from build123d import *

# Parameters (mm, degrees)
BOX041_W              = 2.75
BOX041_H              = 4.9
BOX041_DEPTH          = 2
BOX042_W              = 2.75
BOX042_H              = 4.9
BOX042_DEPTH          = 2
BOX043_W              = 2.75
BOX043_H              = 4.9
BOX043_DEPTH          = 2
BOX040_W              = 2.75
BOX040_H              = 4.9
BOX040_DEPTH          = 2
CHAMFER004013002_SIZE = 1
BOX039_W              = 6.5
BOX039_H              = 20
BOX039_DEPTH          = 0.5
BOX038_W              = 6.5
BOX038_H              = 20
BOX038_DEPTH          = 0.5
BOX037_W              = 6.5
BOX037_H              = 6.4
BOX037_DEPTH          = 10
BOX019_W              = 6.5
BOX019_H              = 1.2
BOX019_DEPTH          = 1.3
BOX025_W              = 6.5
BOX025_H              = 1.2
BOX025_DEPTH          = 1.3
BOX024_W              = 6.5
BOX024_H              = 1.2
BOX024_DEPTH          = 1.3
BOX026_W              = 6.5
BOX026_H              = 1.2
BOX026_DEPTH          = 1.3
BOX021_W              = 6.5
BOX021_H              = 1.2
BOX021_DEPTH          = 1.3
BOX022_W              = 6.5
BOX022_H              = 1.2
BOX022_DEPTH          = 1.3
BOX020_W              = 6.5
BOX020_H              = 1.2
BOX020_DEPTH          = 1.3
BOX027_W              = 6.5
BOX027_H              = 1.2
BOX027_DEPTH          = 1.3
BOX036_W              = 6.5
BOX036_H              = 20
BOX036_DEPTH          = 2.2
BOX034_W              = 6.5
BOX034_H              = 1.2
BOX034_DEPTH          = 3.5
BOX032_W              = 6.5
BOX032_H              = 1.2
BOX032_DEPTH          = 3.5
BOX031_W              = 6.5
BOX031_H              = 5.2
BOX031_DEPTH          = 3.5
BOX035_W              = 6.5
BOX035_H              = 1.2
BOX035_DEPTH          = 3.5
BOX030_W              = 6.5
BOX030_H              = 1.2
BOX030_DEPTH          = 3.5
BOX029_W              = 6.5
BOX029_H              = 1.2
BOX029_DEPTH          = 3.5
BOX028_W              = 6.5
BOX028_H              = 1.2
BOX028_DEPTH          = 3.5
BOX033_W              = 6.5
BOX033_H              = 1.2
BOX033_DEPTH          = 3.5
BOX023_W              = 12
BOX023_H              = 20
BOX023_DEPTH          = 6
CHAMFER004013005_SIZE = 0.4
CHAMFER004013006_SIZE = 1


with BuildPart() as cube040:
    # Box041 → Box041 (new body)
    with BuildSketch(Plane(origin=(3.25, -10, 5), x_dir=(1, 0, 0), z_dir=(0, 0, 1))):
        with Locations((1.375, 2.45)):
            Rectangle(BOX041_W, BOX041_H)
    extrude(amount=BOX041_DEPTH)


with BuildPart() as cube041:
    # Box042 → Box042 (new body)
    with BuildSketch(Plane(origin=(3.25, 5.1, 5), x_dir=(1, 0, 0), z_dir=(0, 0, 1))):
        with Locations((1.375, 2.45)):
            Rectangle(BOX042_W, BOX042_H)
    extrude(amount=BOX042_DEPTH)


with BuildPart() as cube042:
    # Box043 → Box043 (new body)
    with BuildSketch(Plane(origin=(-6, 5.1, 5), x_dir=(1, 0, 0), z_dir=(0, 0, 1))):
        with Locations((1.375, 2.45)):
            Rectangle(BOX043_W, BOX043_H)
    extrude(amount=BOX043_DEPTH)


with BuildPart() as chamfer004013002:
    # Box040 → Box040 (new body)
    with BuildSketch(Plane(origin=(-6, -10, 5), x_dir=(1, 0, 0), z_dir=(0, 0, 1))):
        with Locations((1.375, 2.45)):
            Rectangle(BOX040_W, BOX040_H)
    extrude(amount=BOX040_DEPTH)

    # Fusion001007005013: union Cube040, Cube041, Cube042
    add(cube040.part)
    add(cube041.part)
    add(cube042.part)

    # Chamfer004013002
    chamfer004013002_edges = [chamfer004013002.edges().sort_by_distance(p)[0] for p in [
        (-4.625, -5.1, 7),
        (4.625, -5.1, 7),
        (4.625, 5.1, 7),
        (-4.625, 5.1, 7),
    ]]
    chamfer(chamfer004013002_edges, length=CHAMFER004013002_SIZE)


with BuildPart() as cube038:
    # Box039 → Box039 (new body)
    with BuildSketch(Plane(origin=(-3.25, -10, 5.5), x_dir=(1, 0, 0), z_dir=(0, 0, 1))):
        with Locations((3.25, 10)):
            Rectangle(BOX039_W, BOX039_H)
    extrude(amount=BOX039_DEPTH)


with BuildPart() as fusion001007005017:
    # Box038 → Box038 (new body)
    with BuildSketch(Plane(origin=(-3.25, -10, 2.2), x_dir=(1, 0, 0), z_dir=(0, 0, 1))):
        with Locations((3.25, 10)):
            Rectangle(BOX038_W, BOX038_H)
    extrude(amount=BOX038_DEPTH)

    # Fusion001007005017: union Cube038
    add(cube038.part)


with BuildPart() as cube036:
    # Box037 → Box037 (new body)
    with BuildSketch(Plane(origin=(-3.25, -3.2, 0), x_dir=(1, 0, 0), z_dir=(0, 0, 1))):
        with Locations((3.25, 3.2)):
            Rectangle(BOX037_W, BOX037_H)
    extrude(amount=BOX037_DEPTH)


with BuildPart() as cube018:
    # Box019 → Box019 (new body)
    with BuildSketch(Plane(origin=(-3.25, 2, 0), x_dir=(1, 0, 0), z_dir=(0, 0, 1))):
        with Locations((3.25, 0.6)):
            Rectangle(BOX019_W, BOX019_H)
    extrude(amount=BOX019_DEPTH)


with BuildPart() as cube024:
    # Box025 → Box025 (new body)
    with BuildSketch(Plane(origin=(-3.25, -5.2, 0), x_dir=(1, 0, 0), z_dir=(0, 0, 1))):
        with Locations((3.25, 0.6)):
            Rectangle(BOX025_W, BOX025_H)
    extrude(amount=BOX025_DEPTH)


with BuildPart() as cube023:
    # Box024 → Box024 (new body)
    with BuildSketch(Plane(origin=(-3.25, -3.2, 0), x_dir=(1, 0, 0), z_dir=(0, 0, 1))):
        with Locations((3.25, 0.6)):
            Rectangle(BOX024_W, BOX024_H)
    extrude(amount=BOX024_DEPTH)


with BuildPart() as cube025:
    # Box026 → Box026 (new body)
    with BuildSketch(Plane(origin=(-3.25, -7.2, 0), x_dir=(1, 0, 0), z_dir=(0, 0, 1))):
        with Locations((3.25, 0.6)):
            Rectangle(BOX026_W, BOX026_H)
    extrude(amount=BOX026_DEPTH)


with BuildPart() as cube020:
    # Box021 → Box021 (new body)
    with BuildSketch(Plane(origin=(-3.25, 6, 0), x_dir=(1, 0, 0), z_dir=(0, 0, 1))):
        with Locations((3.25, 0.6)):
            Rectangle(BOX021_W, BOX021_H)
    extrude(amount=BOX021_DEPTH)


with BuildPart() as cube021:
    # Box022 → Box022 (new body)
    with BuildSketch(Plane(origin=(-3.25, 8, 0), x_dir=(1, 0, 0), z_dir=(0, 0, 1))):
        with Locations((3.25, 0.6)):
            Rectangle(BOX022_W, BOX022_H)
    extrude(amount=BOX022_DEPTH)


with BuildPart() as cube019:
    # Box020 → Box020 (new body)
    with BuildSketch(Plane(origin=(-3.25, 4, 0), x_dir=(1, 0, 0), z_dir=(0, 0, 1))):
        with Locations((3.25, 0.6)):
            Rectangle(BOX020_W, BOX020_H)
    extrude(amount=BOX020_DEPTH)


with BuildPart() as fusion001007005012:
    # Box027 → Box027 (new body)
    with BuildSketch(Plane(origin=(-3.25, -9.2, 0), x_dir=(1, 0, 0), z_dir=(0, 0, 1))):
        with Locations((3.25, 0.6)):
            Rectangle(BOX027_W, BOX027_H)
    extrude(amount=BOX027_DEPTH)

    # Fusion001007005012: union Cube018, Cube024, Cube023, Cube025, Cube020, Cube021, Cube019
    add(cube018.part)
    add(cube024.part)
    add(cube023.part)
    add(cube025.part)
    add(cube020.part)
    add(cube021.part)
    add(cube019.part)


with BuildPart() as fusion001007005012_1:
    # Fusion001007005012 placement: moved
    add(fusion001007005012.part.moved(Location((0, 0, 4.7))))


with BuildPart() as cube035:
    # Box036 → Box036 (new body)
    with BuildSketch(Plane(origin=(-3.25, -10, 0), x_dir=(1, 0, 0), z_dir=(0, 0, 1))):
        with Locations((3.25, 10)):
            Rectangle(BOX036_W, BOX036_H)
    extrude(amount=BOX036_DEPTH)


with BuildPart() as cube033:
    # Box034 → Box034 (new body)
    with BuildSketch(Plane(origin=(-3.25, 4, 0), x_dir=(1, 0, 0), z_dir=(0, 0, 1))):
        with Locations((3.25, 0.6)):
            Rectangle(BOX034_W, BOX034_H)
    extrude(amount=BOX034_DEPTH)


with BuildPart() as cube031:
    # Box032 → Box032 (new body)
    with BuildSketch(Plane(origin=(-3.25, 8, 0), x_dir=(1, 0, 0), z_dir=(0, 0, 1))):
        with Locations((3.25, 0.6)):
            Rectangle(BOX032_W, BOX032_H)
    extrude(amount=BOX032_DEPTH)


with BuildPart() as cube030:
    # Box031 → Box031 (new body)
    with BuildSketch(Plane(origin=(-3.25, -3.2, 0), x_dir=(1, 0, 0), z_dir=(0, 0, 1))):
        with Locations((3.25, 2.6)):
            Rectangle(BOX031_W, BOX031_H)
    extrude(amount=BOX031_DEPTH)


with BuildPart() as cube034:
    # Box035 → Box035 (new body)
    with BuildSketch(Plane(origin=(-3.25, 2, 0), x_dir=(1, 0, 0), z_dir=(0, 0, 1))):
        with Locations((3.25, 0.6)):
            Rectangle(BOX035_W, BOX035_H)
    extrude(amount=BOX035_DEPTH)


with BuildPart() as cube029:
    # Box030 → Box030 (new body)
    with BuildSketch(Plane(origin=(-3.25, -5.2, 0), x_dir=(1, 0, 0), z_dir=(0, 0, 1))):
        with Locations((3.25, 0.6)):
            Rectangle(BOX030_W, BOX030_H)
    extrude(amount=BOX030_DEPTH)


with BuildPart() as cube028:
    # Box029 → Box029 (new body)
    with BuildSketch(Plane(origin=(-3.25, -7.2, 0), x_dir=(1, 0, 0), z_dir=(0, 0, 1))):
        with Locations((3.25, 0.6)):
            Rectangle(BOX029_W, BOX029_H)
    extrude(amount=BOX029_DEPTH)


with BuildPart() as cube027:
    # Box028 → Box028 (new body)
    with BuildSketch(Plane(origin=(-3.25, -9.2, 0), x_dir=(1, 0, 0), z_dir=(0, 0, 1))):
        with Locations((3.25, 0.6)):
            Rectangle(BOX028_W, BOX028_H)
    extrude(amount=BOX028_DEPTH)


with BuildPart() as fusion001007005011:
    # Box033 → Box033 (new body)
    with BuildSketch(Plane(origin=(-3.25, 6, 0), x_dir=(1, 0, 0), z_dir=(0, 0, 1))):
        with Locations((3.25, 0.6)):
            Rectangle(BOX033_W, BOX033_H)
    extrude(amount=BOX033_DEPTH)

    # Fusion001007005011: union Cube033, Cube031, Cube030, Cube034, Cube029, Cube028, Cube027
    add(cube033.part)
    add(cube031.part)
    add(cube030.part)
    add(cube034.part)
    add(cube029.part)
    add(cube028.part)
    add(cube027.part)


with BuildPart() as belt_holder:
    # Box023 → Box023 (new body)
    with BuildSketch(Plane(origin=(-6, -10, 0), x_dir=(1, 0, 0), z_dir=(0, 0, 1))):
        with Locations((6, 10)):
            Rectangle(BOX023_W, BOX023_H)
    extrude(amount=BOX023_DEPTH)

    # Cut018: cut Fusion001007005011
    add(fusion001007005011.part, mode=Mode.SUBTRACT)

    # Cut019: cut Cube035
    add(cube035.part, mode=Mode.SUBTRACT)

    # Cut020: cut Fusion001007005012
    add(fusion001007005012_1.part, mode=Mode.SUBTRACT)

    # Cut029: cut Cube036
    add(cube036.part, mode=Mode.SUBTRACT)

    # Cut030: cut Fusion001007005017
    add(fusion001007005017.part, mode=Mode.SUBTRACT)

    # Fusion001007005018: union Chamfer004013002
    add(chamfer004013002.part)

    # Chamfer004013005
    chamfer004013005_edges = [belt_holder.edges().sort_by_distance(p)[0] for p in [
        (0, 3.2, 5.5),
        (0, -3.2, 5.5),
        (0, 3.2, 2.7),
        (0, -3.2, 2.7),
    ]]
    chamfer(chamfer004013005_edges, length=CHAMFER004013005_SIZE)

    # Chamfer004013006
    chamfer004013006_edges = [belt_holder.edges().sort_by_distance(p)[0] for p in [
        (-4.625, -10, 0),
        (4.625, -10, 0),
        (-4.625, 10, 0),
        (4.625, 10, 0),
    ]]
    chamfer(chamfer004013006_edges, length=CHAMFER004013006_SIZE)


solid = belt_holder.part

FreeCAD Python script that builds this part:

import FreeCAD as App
import Part
import Sketcher

V = App.Vector
Q = App.Units.Quantity


def edges_at(feature, points):
    """Names of the edges that pass closest to the given points."""
    edges = feature.Shape.Edges
    near = lambda p: min(range(len(edges)), key=lambda i: edges[i].distToShape(Part.Vertex(*p))[0])
    return sorted({f"Edge{near(p) + 1}" for p in points})

doc = App.newDocument("Part")
body = doc.addObject("PartDesign::Body", "Body")

# Sketch on XY plane
sketch1 = body.newObject("Sketcher::SketchObject", "Sketch")
sketch1.AttachmentSupport = (doc.getObject("XY_Plane"), [""])
sketch1.MapMode = "FlatFace"
sketch1.AttachmentOffset = App.Placement(V(0, 0, 5), App.Rotation())
sketch1.addGeometry(Part.LineSegment(V(3.25, -5.1, 0), V(3.25, -10, 0)), False)
sketch1.addGeometry(Part.LineSegment(V(3.25, -10, 0), V(6, -10, 0)), False)
sketch1.addGeometry(Part.LineSegment(V(6, -10, 0), V(6, -5.1, 0)), False)
sketch1.addGeometry(Part.LineSegment(V(6, -5.1, 0), V(3.25, -5.1, 0)), False)
sketch1.addConstraint(Sketcher.Constraint("Coincident", 0, 2, 1, 1))
sketch1.addConstraint(Sketcher.Constraint("Coincident", 1, 2, 2, 1))
sketch1.addConstraint(Sketcher.Constraint("Coincident", 2, 2, 3, 1))
sketch1.addConstraint(Sketcher.Constraint("Coincident", 3, 2, 0, 1))
sketch1.addConstraint(Sketcher.Constraint("Vertical", 0))
sketch1.addConstraint(Sketcher.Constraint("Horizontal", 1))
sketch1.addConstraint(Sketcher.Constraint("Vertical", 2))
sketch1.addConstraint(Sketcher.Constraint("Horizontal", 3))
sketch1.addConstraint(Sketcher.Constraint("DistanceY", 0, 2, 0, 1, Q("4.9 mm")))
sketch1.addConstraint(Sketcher.Constraint("DistanceY", 0, 2, -1, 1, Q("10 mm")))
sketch1.addConstraint(Sketcher.Constraint("DistanceX", -1, 1, 1, 2, Q("6 mm")))
sketch1.addConstraint(Sketcher.Constraint("DistanceX", 1, 1, 1, 2, Q("2.75 mm")))
pad1 = body.newObject("PartDesign::Pad", "Pad")
pad1.Profile = sketch1
pad1.Length = 2
body2 = doc.addObject("PartDesign::Body", "Body001")

# Sketch on XY plane
sketch2 = body2.newObject("Sketcher::SketchObject", "Sketch001")
sketch2.AttachmentSupport = (doc.getObject("XY_Plane001"), [""])
sketch2.MapMode = "FlatFace"
sketch2.AttachmentOffset = App.Placement(V(0, 0, 5), App.Rotation())
sketch2.addGeometry(Part.LineSegment(V(3.25, 10, 0), V(3.25, 5.1, 0)), False)
sketch2.addGeometry(Part.LineSegment(V(3.25, 5.1, 0), V(6, 5.1, 0)), False)
sketch2.addGeometry(Part.LineSegment(V(6, 5.1, 0), V(6, 10, 0)), False)
sketch2.addGeometry(Part.LineSegment(V(6, 10, 0), V(3.25, 10, 0)), False)
sketch2.addConstraint(Sketcher.Constraint("Coincident", 0, 2, 1, 1))
sketch2.addConstraint(Sketcher.Constraint("Coincident", 1, 2, 2, 1))
sketch2.addConstraint(Sketcher.Constraint("Coincident", 2, 2, 3, 1))
sketch2.addConstraint(Sketcher.Constraint("Coincident", 3, 2, 0, 1))
sketch2.addConstraint(Sketcher.Constraint("Vertical", 0))
sketch2.addConstraint(Sketcher.Constraint("Horizontal", 1))
sketch2.addConstraint(Sketcher.Constraint("Vertical", 2))
sketch2.addConstraint(Sketcher.Constraint("Horizontal", 3))
sketch2.addConstraint(Sketcher.Constraint("DistanceY", 0, 2, 0, 1, Q("4.9 mm")))
sketch2.addConstraint(Sketcher.Constraint("DistanceX", -1, 1, 1, 2, Q("6 mm")))
sketch2.addConstraint(Sketcher.Constraint("DistanceY", -1, 1, 2, 2, Q("10 mm")))
sketch2.addConstraint(Sketcher.Constraint("DistanceX", 1, 1, 1, 2, Q("2.75 mm")))
pad2 = body2.newObject("PartDesign::Pad", "Pad001")
pad2.Profile = sketch2
pad2.Length = 2
body3 = doc.addObject("PartDesign::Body", "Body002")

# Sketch on XY plane
sketch3 = body3.newObject("Sketcher::SketchObject", "Sketch002")
sketch3.AttachmentSupport = (doc.getObject("XY_Plane002"), [""])
sketch3.MapMode = "FlatFace"
sketch3.AttachmentOffset = App.Placement(V(0, 0, 5), App.Rotation())
sketch3.addGeometry(Part.LineSegment(V(-6, 10, 0), V(-6, 5.1, 0)), False)
sketch3.addGeometry(Part.LineSegment(V(-6, 5.1, 0), V(-3.25, 5.1, 0)), False)
sketch3.addGeometry(Part.LineSegment(V(-3.25, 5.1, 0), V(-3.25, 10, 0)), False)
sketch3.addGeometry(Part.LineSegment(V(-3.25, 10, 0), V(-6, 10, 0)), False)
sketch3.addConstraint(Sketcher.Constraint("Coincident", 0, 2, 1, 1))
sketch3.addConstraint(Sketcher.Constraint("Coincident", 1, 2, 2, 1))
sketch3.addConstraint(Sketcher.Constraint("Coincident", 2, 2, 3, 1))
sketch3.addConstraint(Sketcher.Constraint("Coincident", 3, 2, 0, 1))
sketch3.addConstraint(Sketcher.Constraint("Vertical", 0))
sketch3.addConstraint(Sketcher.Constraint("Horizontal", 1))
sketch3.addConstraint(Sketcher.Constraint("Vertical", 2))
sketch3.addConstraint(Sketcher.Constraint("Horizontal", 3))
sketch3.addConstraint(Sketcher.Constraint("DistanceY", 0, 2, 0, 1, Q("4.9 mm")))
sketch3.addConstraint(Sketcher.Constraint("DistanceX", 0, 2, -1, 1, Q("6 mm")))
sketch3.addConstraint(Sketcher.Constraint("DistanceY", -1, 1, 2, 2, Q("10 mm")))
sketch3.addConstraint(Sketcher.Constraint("DistanceX", 1, 1, 1, 2, Q("2.75 mm")))
pad3 = body3.newObject("PartDesign::Pad", "Pad002")
pad3.Profile = sketch3
pad3.Length = 2
body4 = doc.addObject("PartDesign::Body", "Body003")
body4.AllowCompound = True

# Sketch on XY plane
sketch4 = body4.newObject("Sketcher::SketchObject", "Sketch003")
sketch4.AttachmentSupport = (doc.getObject("XY_Plane003"), [""])
sketch4.MapMode = "FlatFace"
sketch4.AttachmentOffset = App.Placement(V(0, 0, 5), App.Rotation())
sketch4.addGeometry(Part.LineSegment(V(-6, -5.1, 0), V(-6, -10, 0)), False)
sketch4.addGeometry(Part.LineSegment(V(-6, -10, 0), V(-3.25, -10, 0)), False)
sketch4.addGeometry(Part.LineSegment(V(-3.25, -10, 0), V(-3.25, -5.1, 0)), False)
sketch4.addGeometry(Part.LineSegment(V(-3.25, -5.1, 0), V(-6, -5.1, 0)), False)
sketch4.addConstraint(Sketcher.Constraint("Coincident", 0, 2, 1, 1))
sketch4.addConstraint(Sketcher.Constraint("Coincident", 1, 2, 2, 1))
sketch4.addConstraint(Sketcher.Constraint("Coincident", 2, 2, 3, 1))
sketch4.addConstraint(Sketcher.Constraint("Coincident", 3, 2, 0, 1))
sketch4.addConstraint(Sketcher.Constraint("Vertical", 0))
sketch4.addConstraint(Sketcher.Constraint("Horizontal", 1))
sketch4.addConstraint(Sketcher.Constraint("Vertical", 2))
sketch4.addConstraint(Sketcher.Constraint("Horizontal", 3))
sketch4.addConstraint(Sketcher.Constraint("DistanceY", 0, 2, 0, 1, Q("4.9 mm")))
sketch4.addConstraint(Sketcher.Constraint("DistanceX", 0, 2, -1, 1, Q("6 mm")))
sketch4.addConstraint(Sketcher.Constraint("DistanceY", 0, 2, -1, 1, Q("10 mm")))
sketch4.addConstraint(Sketcher.Constraint("DistanceX", 1, 1, 1, 2, Q("2.75 mm")))
pad4 = body4.newObject("PartDesign::Pad", "Pad003")
pad4.Profile = sketch4
pad4.Length = 2
doc.recompute()

boolean = body4.newObject("PartDesign::Boolean", "Boolean")
boolean.Type = "Fuse"
boolean.addObjects([body])
doc.recompute()

boolean2 = body4.newObject("PartDesign::Boolean", "Boolean001")
boolean2.Type = "Fuse"
boolean2.addObjects([body2])
doc.recompute()

boolean3 = body4.newObject("PartDesign::Boolean", "Boolean002")
boolean3.Type = "Fuse"
boolean3.addObjects([body3])
doc.recompute()

chamfer = body4.newObject("PartDesign::Chamfer", "Chamfer")
chamfer.Base = (boolean3, edges_at(boolean3, [
    (-4.625, -5.1, 7),
    (4.625, -5.1, 7),
    (4.625, 5.1, 7),
    (-4.625, 5.1, 7),
]))
chamfer.Size = 1
body5 = doc.addObject("PartDesign::Body", "Body004")

# Sketch on XY plane
sketch5 = body5.newObject("Sketcher::SketchObject", "Sketch004")
sketch5.AttachmentSupport = (doc.getObject("XY_Plane004"), [""])
sketch5.MapMode = "FlatFace"
sketch5.AttachmentOffset = App.Placement(V(0, 0, 5.5), App.Rotation())
sketch5.addGeometry(Part.LineSegment(V(-3.25, 10, 0), V(-3.25, -10, 0)), False)
sketch5.addGeometry(Part.LineSegment(V(-3.25, -10, 0), V(3.25, -10, 0)), False)
sketch5.addGeometry(Part.LineSegment(V(3.25, -10, 0), V(3.25, 10, 0)), False)
sketch5.addGeometry(Part.LineSegment(V(3.25, 10, 0), V(-3.25, 10, 0)), False)
sketch5.addConstraint(Sketcher.Constraint("Coincident", 0, 2, 1, 1))
sketch5.addConstraint(Sketcher.Constraint("Coincident", 1, 2, 2, 1))
sketch5.addConstraint(Sketcher.Constraint("Coincident", 2, 2, 3, 1))
sketch5.addConstraint(Sketcher.Constraint("Coincident", 3, 2, 0, 1))
sketch5.addConstraint(Sketcher.Constraint("Vertical", 0))
sketch5.addConstraint(Sketcher.Constraint("Horizontal", 1))
sketch5.addConstraint(Sketcher.Constraint("Vertical", 2))
sketch5.addConstraint(Sketcher.Constraint("Horizontal", 3))
sketch5.addConstraint(Sketcher.Constraint("Symmetric", 0, 2, 2, 2, -1, 1))
sketch5.addConstraint(Sketcher.Constraint("DistanceY", 0, 2, 0, 1, Q("20 mm")))
sketch5.addConstraint(Sketcher.Constraint("DistanceX", 1, 1, 1, 2, Q("6.5 mm")))
pad5 = body5.newObject("PartDesign::Pad", "Pad004")
pad5.Profile = sketch5
pad5.Length = 0.5
body6 = doc.addObject("PartDesign::Body", "Body005")
body6.AllowCompound = True

# Sketch on XY plane
sketch6 = body6.newObject("Sketcher::SketchObject", "Sketch005")
sketch6.AttachmentSupport = (doc.getObject("XY_Plane005"), [""])
sketch6.MapMode = "FlatFace"
sketch6.AttachmentOffset = App.Placement(V(0, 0, 2.2), App.Rotation())
sketch6.addGeometry(Part.LineSegment(V(-3.25, 10, 0), V(-3.25, -10, 0)), False)
sketch6.addGeometry(Part.LineSegment(V(-3.25, -10, 0), V(3.25, -10, 0)), False)
sketch6.addGeometry(Part.LineSegment(V(3.25, -10, 0), V(3.25, 10, 0)), False)
sketch6.addGeometry(Part.LineSegment(V(3.25, 10, 0), V(-3.25, 10, 0)), False)
sketch6.addConstraint(Sketcher.Constraint("Coincident", 0, 2, 1, 1))
sketch6.addConstraint(Sketcher.Constraint("Coincident", 1, 2, 2, 1))
sketch6.addConstraint(Sketcher.Constraint("Coincident", 2, 2, 3, 1))
sketch6.addConstraint(Sketcher.Constraint("Coincident", 3, 2, 0, 1))
sketch6.addConstraint(Sketcher.Constraint("Vertical", 0))
sketch6.addConstraint(Sketcher.Constraint("Horizontal", 1))
sketch6.addConstraint(Sketcher.Constraint("Vertical", 2))
sketch6.addConstraint(Sketcher.Constraint("Horizontal", 3))
sketch6.addConstraint(Sketcher.Constraint("Symmetric", 0, 2, 2, 2, -1, 1))
sketch6.addConstraint(Sketcher.Constraint("DistanceY", 0, 2, 0, 1, Q("20 mm")))
sketch6.addConstraint(Sketcher.Constraint("DistanceX", 1, 1, 1, 2, Q("6.5 mm")))
pad6 = body6.newObject("PartDesign::Pad", "Pad005")
pad6.Profile = sketch6
pad6.Length = 0.5
doc.recompute()

boolean4 = body6.newObject("PartDesign::Boolean", "Boolean003")
boolean4.Type = "Fuse"
boolean4.addObjects([body5])
body7 = doc.addObject("PartDesign::Body", "Body006")

# Sketch on XY plane
sketch7 = body7.newObject("Sketcher::SketchObject", "Sketch006")
sketch7.AttachmentSupport = (doc.getObject("XY_Plane006"), [""])
sketch7.MapMode = "FlatFace"
sketch7.addGeometry(Part.LineSegment(V(-3.25, 3.2, 0), V(-3.25, -3.2, 0)), False)
sketch7.addGeometry(Part.LineSegment(V(-3.25, -3.2, 0), V(3.25, -3.2, 0)), False)
sketch7.addGeometry(Part.LineSegment(V(3.25, -3.2, 0), V(3.25, 3.2, 0)), False)
sketch7.addGeometry(Part.LineSegment(V(3.25, 3.2, 0), V(-3.25, 3.2, 0)), False)
sketch7.addConstraint(Sketcher.Constraint("Coincident", 0, 2, 1, 1))
sketch7.addConstraint(Sketcher.Constraint("Coincident", 1, 2, 2, 1))
sketch7.addConstraint(Sketcher.Constraint("Coincident", 2, 2, 3, 1))
sketch7.addConstraint(Sketcher.Constraint("Coincident", 3, 2, 0, 1))
sketch7.addConstraint(Sketcher.Constraint("Vertical", 0))
sketch7.addConstraint(Sketcher.Constraint("Horizontal", 1))
sketch7.addConstraint(Sketcher.Constraint("Vertical", 2))
sketch7.addConstraint(Sketcher.Constraint("Horizontal", 3))
sketch7.addConstraint(Sketcher.Constraint("Symmetric", 0, 2, 2, 2, -1, 1))
sketch7.addConstraint(Sketcher.Constraint("DistanceX", 1, 1, 1, 2, Q("6.5 mm")))
sketch7.addConstraint(Sketcher.Constraint("DistanceY", 0, 2, 0, 1, Q("6.4 mm")))
pad7 = body7.newObject("PartDesign::Pad", "Pad006")
pad7.Profile = sketch7
pad7.Length = 10
body8 = doc.addObject("PartDesign::Body", "Body007")

# Sketch on XY plane
sketch8 = body8.newObject("Sketcher::SketchObject", "Sketch007")
sketch8.AttachmentSupport = (doc.getObject("XY_Plane007"), [""])
sketch8.MapMode = "FlatFace"
sketch8.addGeometry(Part.LineSegment(V(-3.25, 3.2, 0), V(-3.25, 2, 0)), False)
sketch8.addGeometry(Part.LineSegment(V(-3.25, 2, 0), V(3.25, 2, 0)), False)
sketch8.addGeometry(Part.LineSegment(V(3.25, 2, 0), V(3.25, 3.2, 0)), False)
sketch8.addGeometry(Part.LineSegment(V(3.25, 3.2, 0), V(-3.25, 3.2, 0)), False)
sketch8.addConstraint(Sketcher.Constraint("Coincident", 0, 2, 1, 1))
sketch8.addConstraint(Sketcher.Constraint("Coincident", 1, 2, 2, 1))
sketch8.addConstraint(Sketcher.Constraint("Coincident", 2, 2, 3, 1))
sketch8.addConstraint(Sketcher.Constraint("Coincident", 3, 2, 0, 1))
sketch8.addConstraint(Sketcher.Constraint("Vertical", 0))
sketch8.addConstraint(Sketcher.Constraint("Horizontal", 1))
sketch8.addConstraint(Sketcher.Constraint("Vertical", 2))
sketch8.addConstraint(Sketcher.Constraint("Horizontal", 3))
sketch8.addConstraint(Sketcher.Constraint("DistanceX", 1, 1, 1, 2, Q("6.5 mm")))
sketch8.addConstraint(Sketcher.Constraint("DistanceY", 0, 2, 0, 1, Q("1.2 mm")))
sketch8.addConstraint(Sketcher.Constraint("DistanceY", -1, 1, 0, 2, Q("2 mm")))
sketch8.addConstraint(Sketcher.Constraint("DistanceX", 0, 2, -1, 1, Q("3.25 mm")))
pad8 = body8.newObject("PartDesign::Pad", "Pad007")
pad8.Profile = sketch8
pad8.Length = 1.3
body9 = doc.addObject("PartDesign::Body", "Body008")

# Sketch on XY plane
sketch9 = body9.newObject("Sketcher::SketchObject", "Sketch008")
sketch9.AttachmentSupport = (doc.getObject("XY_Plane008"), [""])
sketch9.MapMode = "FlatFace"
sketch9.addGeometry(Part.LineSegment(V(-3.25, -4, 0), V(-3.25, -5.2, 0)), False)
sketch9.addGeometry(Part.LineSegment(V(-3.25, -5.2, 0), V(3.25, -5.2, 0)), False)
sketch9.addGeometry(Part.LineSegment(V(3.25, -5.2, 0), V(3.25, -4, 0)), False)
sketch9.addGeometry(Part.LineSegment(V(3.25, -4, 0), V(-3.25, -4, 0)), False)
sketch9.addConstraint(Sketcher.Constraint("Coincident", 0, 2, 1, 1))
sketch9.addConstraint(Sketcher.Constraint("Coincident", 1, 2, 2, 1))
sketch9.addConstraint(Sketcher.Constraint("Coincident", 2, 2, 3, 1))
sketch9.addConstraint(Sketcher.Constraint("Coincident", 3, 2, 0, 1))
sketch9.addConstraint(Sketcher.Constraint("Vertical", 0))
sketch9.addConstraint(Sketcher.Constraint("Horizontal", 1))
sketch9.addConstraint(Sketcher.Constraint("Vertical", 2))
sketch9.addConstraint(Sketcher.Constraint("Horizontal", 3))
sketch9.addConstraint(Sketcher.Constraint("DistanceX", 1, 1, 1, 2, Q("6.5 mm")))
sketch9.addConstraint(Sketcher.Constraint("DistanceY", 0, 2, 0, 1, Q("1.2 mm")))
sketch9.addConstraint(Sketcher.Constraint("DistanceY", 2, 2, -1, 1, Q("4 mm")))
sketch9.addConstraint(Sketcher.Constraint("DistanceX", 0, 2, -1, 1, Q("3.25 mm")))
pad9 = body9.newObject("PartDesign::Pad", "Pad008")
pad9.Profile = sketch9
pad9.Length = 1.3
body10 = doc.addObject("PartDesign::Body", "Body009")

# Sketch on XY plane
sketch10 = body10.newObject("Sketcher::SketchObject", "Sketch009")
sketch10.AttachmentSupport = (doc.getObject("XY_Plane009"), [""])
sketch10.MapMode = "FlatFace"
sketch10.addGeometry(Part.LineSegment(V(-3.25, -2, 0), V(-3.25, -3.2, 0)), False)
sketch10.addGeometry(Part.LineSegment(V(-3.25, -3.2, 0), V(3.25, -3.2, 0)), False)
sketch10.addGeometry(Part.LineSegment(V(3.25, -3.2, 0), V(3.25, -2, 0)), False)
sketch10.addGeometry(Part.LineSegment(V(3.25, -2, 0), V(-3.25, -2, 0)), False)
sketch10.addConstraint(Sketcher.Constraint("Coincident", 0, 2, 1, 1))
sketch10.addConstraint(Sketcher.Constraint("Coincident", 1, 2, 2, 1))
sketch10.addConstraint(Sketcher.Constraint("Coincident", 2, 2, 3, 1))
sketch10.addConstraint(Sketcher.Constraint("Coincident", 3, 2, 0, 1))
sketch10.addConstraint(Sketcher.Constraint("Vertical", 0))
sketch10.addConstraint(Sketcher.Constraint("Horizontal", 1))
sketch10.addConstraint(Sketcher.Constraint("Vertical", 2))
sketch10.addConstraint(Sketcher.Constraint("Horizontal", 3))
sketch10.addConstraint(Sketcher.Constraint("DistanceX", 1, 1, 1, 2, Q("6.5 mm")))
sketch10.addConstraint(Sketcher.Constraint("DistanceY", 0, 2, 0, 1, Q("1.2 mm")))
sketch10.addConstraint(Sketcher.Constraint("DistanceY", 2, 2, -1, 1, Q("2 mm")))
sketch10.addConstraint(Sketcher.Constraint("DistanceX", 0, 2, -1, 1, Q("3.25 mm")))
pad10 = body10.newObject("PartDesign::Pad", "Pad009")
pad10.Profile = sketch10
pad10.Length = 1.3
body11 = doc.addObject("PartDesign::Body", "Body010")

# Sketch on XY plane
sketch11 = body11.newObject("Sketcher::SketchObject", "Sketch010")
sketch11.AttachmentSupport = (doc.getObject("XY_Plane010"), [""])
sketch11.MapMode = "FlatFace"
sketch11.addGeometry(Part.LineSegment(V(-3.25, -6, 0), V(-3.25, -7.2, 0)), False)
sketch11.addGeometry(Part.LineSegment(V(-3.25, -7.2, 0), V(3.25, -7.2, 0)), False)
sketch11.addGeometry(Part.LineSegment(V(3.25, -7.2, 0), V(3.25, -6, 0)), False)
sketch11.addGeometry(Part.LineSegment(V(3.25, -6, 0), V(-3.25, -6, 0)), False)
sketch11.addConstraint(Sketcher.Constraint("Coincident", 0, 2, 1, 1))
sketch11.addConstraint(Sketcher.Constraint("Coincident", 1, 2, 2, 1))
sketch11.addConstraint(Sketcher.Constraint("Coincident", 2, 2, 3, 1))
sketch11.addConstraint(Sketcher.Constraint("Coincident", 3, 2, 0, 1))
sketch11.addConstraint(Sketcher.Constraint("Vertical", 0))
sketch11.addConstraint(Sketcher.Constraint("Horizontal", 1))
sketch11.addConstraint(Sketcher.Constraint("Vertical", 2))
sketch11.addConstraint(Sketcher.Constraint("Horizontal", 3))
sketch11.addConstraint(Sketcher.Constraint("DistanceX", 1, 1, 1, 2, Q("6.5 mm")))
sketch11.addConstraint(Sketcher.Constraint("DistanceY", 0, 2, 0, 1, Q("1.2 mm")))
sketch11.addConstraint(Sketcher.Constraint("DistanceY", 2, 2, -1, 1, Q("6 mm")))
sketch11.addConstraint(Sketcher.Constraint("DistanceX", 0, 2, -1, 1, Q("3.25 mm")))
pad11 = body11.newObject("PartDesign::Pad", "Pad010")
pad11.Profile = sketch11
pad11.Length = 1.3
body12 = doc.addObject("PartDesign::Body", "Body011")

# Sketch on XY plane
sketch12 = body12.newObject("Sketcher::SketchObject", "Sketch011")
sketch12.AttachmentSupport = (doc.getObject("XY_Plane011"), [""])
sketch12.MapMode = "FlatFace"
sketch12.addGeometry(Part.LineSegment(V(-3.25, 7.2, 0), V(-3.25, 6, 0)), False)
sketch12.addGeometry(Part.LineSegment(V(-3.25, 6, 0), V(3.25, 6, 0)), False)
sketch12.addGeometry(Part.LineSegment(V(3.25, 6, 0), V(3.25, 7.2, 0)), False)
sketch12.addGeometry(Part.LineSegment(V(3.25, 7.2, 0), V(-3.25, 7.2, 0)), False)
sketch12.addConstraint(Sketcher.Constraint("Coincident", 0, 2, 1, 1))
sketch12.addConstraint(Sketcher.Constraint("Coincident", 1, 2, 2, 1))
sketch12.addConstraint(Sketcher.Constraint("Coincident", 2, 2, 3, 1))
sketch12.addConstraint(Sketcher.Constraint("Coincident", 3, 2, 0, 1))
sketch12.addConstraint(Sketcher.Constraint("Vertical", 0))
sketch12.addConstraint(Sketcher.Constraint("Horizontal", 1))
sketch12.addConstraint(Sketcher.Constraint("Vertical", 2))
sketch12.addConstraint(Sketcher.Constraint("Horizontal", 3))
sketch12.addConstraint(Sketcher.Constraint("DistanceX", 1, 1, 1, 2, Q("6.5 mm")))
sketch12.addConstraint(Sketcher.Constraint("DistanceY", 0, 2, 0, 1, Q("1.2 mm")))
sketch12.addConstraint(Sketcher.Constraint("DistanceY", -1, 1, 0, 2, Q("6 mm")))
sketch12.addConstraint(Sketcher.Constraint("DistanceX", 0, 2, -1, 1, Q("3.25 mm")))
pad12 = body12.newObject("PartDesign::Pad", "Pad011")
pad12.Profile = sketch12
pad12.Length = 1.3
body13 = doc.addObject("PartDesign::Body", "Body012")

# Sketch on XY plane
sketch13 = body13.newObject("Sketcher::SketchObject", "Sketch012")
sketch13.AttachmentSupport = (doc.getObject("XY_Plane012"), [""])
sketch13.MapMode = "FlatFace"
sketch13.addGeometry(Part.LineSegment(V(-3.25, 9.2, 0), V(-3.25, 8, 0)), False)
sketch13.addGeometry(Part.LineSegment(V(-3.25, 8, 0), V(3.25, 8, 0)), False)
sketch13.addGeometry(Part.LineSegment(V(3.25, 8, 0), V(3.25, 9.2, 0)), False)
sketch13.addGeometry(Part.LineSegment(V(3.25, 9.2, 0), V(-3.25, 9.2, 0)), False)
sketch13.addConstraint(Sketcher.Constraint("Coincident", 0, 2, 1, 1))
sketch13.addConstraint(Sketcher.Constraint("Coincident", 1, 2, 2, 1))
sketch13.addConstraint(Sketcher.Constraint("Coincident", 2, 2, 3, 1))
sketch13.addConstraint(Sketcher.Constraint("Coincident", 3, 2, 0, 1))
sketch13.addConstraint(Sketcher.Constraint("Vertical", 0))
sketch13.addConstraint(Sketcher.Constraint("Horizontal", 1))
sketch13.addConstraint(Sketcher.Constraint("Vertical", 2))
sketch13.addConstraint(Sketcher.Constraint("Horizontal", 3))
sketch13.addConstraint(Sketcher.Constraint("DistanceX", 1, 1, 1, 2, Q("6.5 mm")))
sketch13.addConstraint(Sketcher.Constraint("DistanceY", 0, 2, 0, 1, Q("1.2 mm")))
sketch13.addConstraint(Sketcher.Constraint("DistanceY", -1, 1, 0, 2, Q("8 mm")))
sketch13.addConstraint(Sketcher.Constraint("DistanceX", 0, 2, -1, 1, Q("3.25 mm")))
pad13 = body13.newObject("PartDesign::Pad", "Pad012")
pad13.Profile = sketch13
pad13.Length = 1.3
body14 = doc.addObject("PartDesign::Body", "Body013")

# Sketch on XY plane
sketch14 = body14.newObject("Sketcher::SketchObject", "Sketch013")
sketch14.AttachmentSupport = (doc.getObject("XY_Plane013"), [""])
sketch14.MapMode = "FlatFace"
sketch14.addGeometry(Part.LineSegment(V(-3.25, 5.2, 0), V(-3.25, 4, 0)), False)
sketch14.addGeometry(Part.LineSegment(V(-3.25, 4, 0), V(3.25, 4, 0)), False)
sketch14.addGeometry(Part.LineSegment(V(3.25, 4, 0), V(3.25, 5.2, 0)), False)
sketch14.addGeometry(Part.LineSegment(V(3.25, 5.2, 0), V(-3.25, 5.2, 0)), False)
sketch14.addConstraint(Sketcher.Constraint("Coincident", 0, 2, 1, 1))
sketch14.addConstraint(Sketcher.Constraint("Coincident", 1, 2, 2, 1))
sketch14.addConstraint(Sketcher.Constraint("Coincident", 2, 2, 3, 1))
sketch14.addConstraint(Sketcher.Constraint("Coincident", 3, 2, 0, 1))
sketch14.addConstraint(Sketcher.Constraint("Vertical", 0))
sketch14.addConstraint(Sketcher.Constraint("Horizontal", 1))
sketch14.addConstraint(Sketcher.Constraint("Vertical", 2))
sketch14.addConstraint(Sketcher.Constraint("Horizontal", 3))
sketch14.addConstraint(Sketcher.Constraint("DistanceX", 1, 1, 1, 2, Q("6.5 mm")))
sketch14.addConstraint(Sketcher.Constraint("DistanceY", 0, 2, 0, 1, Q("1.2 mm")))
sketch14.addConstraint(Sketcher.Constraint("DistanceY", -1, 1, 0, 2, Q("4 mm")))
sketch14.addConstraint(Sketcher.Constraint("DistanceX", 0, 2, -1, 1, Q("3.25 mm")))
pad14 = body14.newObject("PartDesign::Pad", "Pad013")
pad14.Profile = sketch14
pad14.Length = 1.3
body15 = doc.addObject("PartDesign::Body", "Body014")
body15.AllowCompound = True

# Sketch on XY plane
sketch15 = body15.newObject("Sketcher::SketchObject", "Sketch014")
sketch15.AttachmentSupport = (doc.getObject("XY_Plane014"), [""])
sketch15.MapMode = "FlatFace"
sketch15.addGeometry(Part.LineSegment(V(-3.25, -8, 0), V(-3.25, -9.2, 0)), False)
sketch15.addGeometry(Part.LineSegment(V(-3.25, -9.2, 0), V(3.25, -9.2, 0)), False)
sketch15.addGeometry(Part.LineSegment(V(3.25, -9.2, 0), V(3.25, -8, 0)), False)
sketch15.addGeometry(Part.LineSegment(V(3.25, -8, 0), V(-3.25, -8, 0)), False)
sketch15.addConstraint(Sketcher.Constraint("Coincident", 0, 2, 1, 1))
sketch15.addConstraint(Sketcher.Constraint("Coincident", 1, 2, 2, 1))
sketch15.addConstraint(Sketcher.Constraint("Coincident", 2, 2, 3, 1))
sketch15.addConstraint(Sketcher.Constraint("Coincident", 3, 2, 0, 1))
sketch15.addConstraint(Sketcher.Constraint("Vertical", 0))
sketch15.addConstraint(Sketcher.Constraint("Horizontal", 1))
sketch15.addConstraint(Sketcher.Constraint("Vertical", 2))
sketch15.addConstraint(Sketcher.Constraint("Horizontal", 3))
sketch15.addConstraint(Sketcher.Constraint("DistanceX", 1, 1, 1, 2, Q("6.5 mm")))
sketch15.addConstraint(Sketcher.Constraint("DistanceY", 0, 2, 0, 1, Q("1.2 mm")))
sketch15.addConstraint(Sketcher.Constraint("DistanceY", 2, 2, -1, 1, Q("8 mm")))
sketch15.addConstraint(Sketcher.Constraint("DistanceX", 0, 2, -1, 1, Q("3.25 mm")))
pad15 = body15.newObject("PartDesign::Pad", "Pad014")
pad15.Profile = sketch15
pad15.Length = 1.3
doc.recompute()

boolean5 = body15.newObject("PartDesign::Boolean", "Boolean004")
boolean5.Type = "Fuse"
boolean5.addObjects([body8])
doc.recompute()

boolean6 = body15.newObject("PartDesign::Boolean", "Boolean005")
boolean6.Type = "Fuse"
boolean6.addObjects([body9])
doc.recompute()

boolean7 = body15.newObject("PartDesign::Boolean", "Boolean006")
boolean7.Type = "Fuse"
boolean7.addObjects([body10])
doc.recompute()

boolean8 = body15.newObject("PartDesign::Boolean", "Boolean007")
boolean8.Type = "Fuse"
boolean8.addObjects([body11])
doc.recompute()

boolean9 = body15.newObject("PartDesign::Boolean", "Boolean008")
boolean9.Type = "Fuse"
boolean9.addObjects([body12])
doc.recompute()

boolean10 = body15.newObject("PartDesign::Boolean", "Boolean009")
boolean10.Type = "Fuse"
boolean10.addObjects([body13])
doc.recompute()

boolean11 = body15.newObject("PartDesign::Boolean", "Boolean010")
boolean11.Type = "Fuse"
boolean11.addObjects([body14])
body16 = doc.addObject("PartDesign::Body", "Body015")
body16.AllowCompound = True
doc.recompute()

body15.Placement = App.Placement(V(0, 0, 4.7), App.Rotation(V(0, 0, 1), 0))
boolean12 = body16.newObject("PartDesign::Boolean", "Boolean011")
boolean12.Type = "Fuse"
boolean12.addObjects([body15])
body17 = doc.addObject("PartDesign::Body", "Body016")

# Sketch on XY plane
sketch16 = body17.newObject("Sketcher::SketchObject", "Sketch015")
sketch16.AttachmentSupport = (doc.getObject("XY_Plane016"), [""])
sketch16.MapMode = "FlatFace"
sketch16.addGeometry(Part.LineSegment(V(-3.25, 10, 0), V(-3.25, -10, 0)), False)
sketch16.addGeometry(Part.LineSegment(V(-3.25, -10, 0), V(3.25, -10, 0)), False)
sketch16.addGeometry(Part.LineSegment(V(3.25, -10, 0), V(3.25, 10, 0)), False)
sketch16.addGeometry(Part.LineSegment(V(3.25, 10, 0), V(-3.25, 10, 0)), False)
sketch16.addConstraint(Sketcher.Constraint("Coincident", 0, 2, 1, 1))
sketch16.addConstraint(Sketcher.Constraint("Coincident", 1, 2, 2, 1))
sketch16.addConstraint(Sketcher.Constraint("Coincident", 2, 2, 3, 1))
sketch16.addConstraint(Sketcher.Constraint("Coincident", 3, 2, 0, 1))
sketch16.addConstraint(Sketcher.Constraint("Vertical", 0))
sketch16.addConstraint(Sketcher.Constraint("Horizontal", 1))
sketch16.addConstraint(Sketcher.Constraint("Vertical", 2))
sketch16.addConstraint(Sketcher.Constraint("Horizontal", 3))
sketch16.addConstraint(Sketcher.Constraint("Symmetric", 0, 2, 2, 2, -1, 1))
sketch16.addConstraint(Sketcher.Constraint("DistanceY", 0, 2, 0, 1, Q("20 mm")))
sketch16.addConstraint(Sketcher.Constraint("DistanceX", 1, 1, 1, 2, Q("6.5 mm")))
pad16 = body17.newObject("PartDesign::Pad", "Pad015")
pad16.Profile = sketch16
pad16.Length = 2.2
body18 = doc.addObject("PartDesign::Body", "Body017")

# Sketch on XY plane
sketch17 = body18.newObject("Sketcher::SketchObject", "Sketch016")
sketch17.AttachmentSupport = (doc.getObject("XY_Plane017"), [""])
sketch17.MapMode = "FlatFace"
sketch17.addGeometry(Part.LineSegment(V(-3.25, 5.2, 0), V(-3.25, 4, 0)), False)
sketch17.addGeometry(Part.LineSegment(V(-3.25, 4, 0), V(3.25, 4, 0)), False)
sketch17.addGeometry(Part.LineSegment(V(3.25, 4, 0), V(3.25, 5.2, 0)), False)
sketch17.addGeometry(Part.LineSegment(V(3.25, 5.2, 0), V(-3.25, 5.2, 0)), False)
sketch17.addConstraint(Sketcher.Constraint("Coincident", 0, 2, 1, 1))
sketch17.addConstraint(Sketcher.Constraint("Coincident", 1, 2, 2, 1))
sketch17.addConstraint(Sketcher.Constraint("Coincident", 2, 2, 3, 1))
sketch17.addConstraint(Sketcher.Constraint("Coincident", 3, 2, 0, 1))
sketch17.addConstraint(Sketcher.Constraint("Vertical", 0))
sketch17.addConstraint(Sketcher.Constraint("Horizontal", 1))
sketch17.addConstraint(Sketcher.Constraint("Vertical", 2))
sketch17.addConstraint(Sketcher.Constraint("Horizontal", 3))
sketch17.addConstraint(Sketcher.Constraint("DistanceX", 1, 1, 1, 2, Q("6.5 mm")))
sketch17.addConstraint(Sketcher.Constraint("DistanceY", 0, 2, 0, 1, Q("1.2 mm")))
sketch17.addConstraint(Sketcher.Constraint("DistanceY", -1, 1, 0, 2, Q("4 mm")))
sketch17.addConstraint(Sketcher.Constraint("DistanceX", 0, 2, -1, 1, Q("3.25 mm")))
pad17 = body18.newObject("PartDesign::Pad", "Pad016")
pad17.Profile = sketch17
pad17.Length = 3.5
body19 = doc.addObject("PartDesign::Body", "Body018")

# Sketch on XY plane
sketch18 = body19.newObject("Sketcher::SketchObject", "Sketch017")
sketch18.AttachmentSupport = (doc.getObject("XY_Plane018"), [""])
sketch18.MapMode = "FlatFace"
sketch18.addGeometry(Part.LineSegment(V(-3.25, 9.2, 0), V(-3.25, 8, 0)), False)
sketch18.addGeometry(Part.LineSegment(V(-3.25, 8, 0), V(3.25, 8, 0)), False)
sketch18.addGeometry(Part.LineSegment(V(3.25, 8, 0), V(3.25, 9.2, 0)), False)
sketch18.addGeometry(Part.LineSegment(V(3.25, 9.2, 0), V(-3.25, 9.2, 0)), False)
sketch18.addConstraint(Sketcher.Constraint("Coincident", 0, 2, 1, 1))
sketch18.addConstraint(Sketcher.Constraint("Coincident", 1, 2, 2, 1))
sketch18.addConstraint(Sketcher.Constraint("Coincident", 2, 2, 3, 1))
sketch18.addConstraint(Sketcher.Constraint("Coincident", 3, 2, 0, 1))
sketch18.addConstraint(Sketcher.Constraint("Vertical", 0))
sketch18.addConstraint(Sketcher.Constraint("Horizontal", 1))
sketch18.addConstraint(Sketcher.Constraint("Vertical", 2))
sketch18.addConstraint(Sketcher.Constraint("Horizontal", 3))
sketch18.addConstraint(Sketcher.Constraint("DistanceX", 1, 1, 1, 2, Q("6.5 mm")))
sketch18.addConstraint(Sketcher.Constraint("DistanceY", 0, 2, 0, 1, Q("1.2 mm")))
sketch18.addConstraint(Sketcher.Constraint("DistanceY", -1, 1, 0, 2, Q("8 mm")))
sketch18.addConstraint(Sketcher.Constraint("DistanceX", 0, 2, -1, 1, Q("3.25 mm")))
pad18 = body19.newObject("PartDesign::Pad", "Pad017")
pad18.Profile = sketch18
pad18.Length = 3.5
body20 = doc.addObject("PartDesign::Body", "Body019")

# Sketch on XY plane
sketch19 = body20.newObject("Sketcher::SketchObject", "Sketch018")
sketch19.AttachmentSupport = (doc.getObject("XY_Plane019"), [""])
sketch19.MapMode = "FlatFace"
sketch19.addGeometry(Part.LineSegment(V(-3.25, 2, 0), V(-3.25, -3.2, 0)), False)
sketch19.addGeometry(Part.LineSegment(V(-3.25, -3.2, 0), V(3.25, -3.2, 0)), False)
sketch19.addGeometry(Part.LineSegment(V(3.25, -3.2, 0), V(3.25, 2, 0)), False)
sketch19.addGeometry(Part.LineSegment(V(3.25, 2, 0), V(-3.25, 2, 0)), False)
sketch19.addConstraint(Sketcher.Constraint("Coincident", 0, 2, 1, 1))
sketch19.addConstraint(Sketcher.Constraint("Coincident", 1, 2, 2, 1))
sketch19.addConstraint(Sketcher.Constraint("Coincident", 2, 2, 3, 1))
sketch19.addConstraint(Sketcher.Constraint("Coincident", 3, 2, 0, 1))
sketch19.addConstraint(Sketcher.Constraint("Vertical", 0))
sketch19.addConstraint(Sketcher.Constraint("Horizontal", 1))
sketch19.addConstraint(Sketcher.Constraint("Vertical", 2))
sketch19.addConstraint(Sketcher.Constraint("Horizontal", 3))
sketch19.addConstraint(Sketcher.Constraint("DistanceX", 1, 1, 1, 2, Q("6.5 mm")))
sketch19.addConstraint(Sketcher.Constraint("DistanceY", 0, 2, 0, 1, Q("5.2 mm")))
sketch19.addConstraint(Sketcher.Constraint("DistanceY", -1, 1, 2, 2, Q("2 mm")))
sketch19.addConstraint(Sketcher.Constraint("DistanceX", 0, 2, -1, 1, Q("3.25 mm")))
pad19 = body20.newObject("PartDesign::Pad", "Pad018")
pad19.Profile = sketch19
pad19.Length = 3.5
body21 = doc.addObject("PartDesign::Body", "Body020")

# Sketch on XY plane
sketch20 = body21.newObject("Sketcher::SketchObject", "Sketch019")
sketch20.AttachmentSupport = (doc.getObject("XY_Plane020"), [""])
sketch20.MapMode = "FlatFace"
sketch20.addGeometry(Part.LineSegment(V(-3.25, 3.2, 0), V(-3.25, 2, 0)), False)
sketch20.addGeometry(Part.LineSegment(V(-3.25, 2, 0), V(3.25, 2, 0)), False)
sketch20.addGeometry(Part.LineSegment(V(3.25, 2, 0), V(3.25, 3.2, 0)), False)
sketch20.addGeometry(Part.LineSegment(V(3.25, 3.2, 0), V(-3.25, 3.2, 0)), False)
sketch20.addConstraint(Sketcher.Constraint("Coincident", 0, 2, 1, 1))
sketch20.addConstraint(Sketcher.Constraint("Coincident", 1, 2, 2, 1))
sketch20.addConstraint(Sketcher.Constraint("Coincident", 2, 2, 3, 1))
sketch20.addConstraint(Sketcher.Constraint("Coincident", 3, 2, 0, 1))
sketch20.addConstraint(Sketcher.Constraint("Vertical", 0))
sketch20.addConstraint(Sketcher.Constraint("Horizontal", 1))
sketch20.addConstraint(Sketcher.Constraint("Vertical", 2))
sketch20.addConstraint(Sketcher.Constraint("Horizontal", 3))
sketch20.addConstraint(Sketcher.Constraint("DistanceX", 1, 1, 1, 2, Q("6.5 mm")))
sketch20.addConstraint(Sketcher.Constraint("DistanceY", 0, 2, 0, 1, Q("1.2 mm")))
sketch20.addConstraint(Sketcher.Constraint("DistanceY", -1, 1, 0, 2, Q("2 mm")))
sketch20.addConstraint(Sketcher.Constraint("DistanceX", 0, 2, -1, 1, Q("3.25 mm")))
pad20 = body21.newObject("PartDesign::Pad", "Pad019")
pad20.Profile = sketch20
pad20.Length = 3.5
body22 = doc.addObject("PartDesign::Body", "Body021")

# Sketch on XY plane
sketch21 = body22.newObject("Sketcher::SketchObject", "Sketch020")
sketch21.AttachmentSupport = (doc.getObject("XY_Plane021"), [""])
sketch21.MapMode = "FlatFace"
sketch21.addGeometry(Part.LineSegment(V(-3.25, -4, 0), V(-3.25, -5.2, 0)), False)
sketch21.addGeometry(Part.LineSegment(V(-3.25, -5.2, 0), V(3.25, -5.2, 0)), False)
sketch21.addGeometry(Part.LineSegment(V(3.25, -5.2, 0), V(3.25, -4, 0)), False)
sketch21.addGeometry(Part.LineSegment(V(3.25, -4, 0), V(-3.25, -4, 0)), False)
sketch21.addConstraint(Sketcher.Constraint("Coincident", 0, 2, 1, 1))
sketch21.addConstraint(Sketcher.Constraint("Coincident", 1, 2, 2, 1))
sketch21.addConstraint(Sketcher.Constraint("Coincident", 2, 2, 3, 1))
sketch21.addConstraint(Sketcher.Constraint("Coincident", 3, 2, 0, 1))
sketch21.addConstraint(Sketcher.Constraint("Vertical", 0))
sketch21.addConstraint(Sketcher.Constraint("Horizontal", 1))
sketch21.addConstraint(Sketcher.Constraint("Vertical", 2))
sketch21.addConstraint(Sketcher.Constraint("Horizontal", 3))
sketch21.addConstraint(Sketcher.Constraint("DistanceX", 1, 1, 1, 2, Q("6.5 mm")))
sketch21.addConstraint(Sketcher.Constraint("DistanceY", 0, 2, 0, 1, Q("1.2 mm")))
sketch21.addConstraint(Sketcher.Constraint("DistanceY", 2, 2, -1, 1, Q("4 mm")))
sketch21.addConstraint(Sketcher.Constraint("DistanceX", 0, 2, -1, 1, Q("3.25 mm")))
pad21 = body22.newObject("PartDesign::Pad", "Pad020")
pad21.Profile = sketch21
pad21.Length = 3.5
body23 = doc.addObject("PartDesign::Body", "Body022")

# Sketch on XY plane
sketch22 = body23.newObject("Sketcher::SketchObject", "Sketch021")
sketch22.AttachmentSupport = (doc.getObject("XY_Plane022"), [""])
sketch22.MapMode = "FlatFace"
sketch22.addGeometry(Part.LineSegment(V(-3.25, -6, 0), V(-3.25, -7.2, 0)), False)
sketch22.addGeometry(Part.LineSegment(V(-3.25, -7.2, 0), V(3.25, -7.2, 0)), False)
sketch22.addGeometry(Part.LineSegment(V(3.25, -7.2, 0), V(3.25, -6, 0)), False)
sketch22.addGeometry(Part.LineSegment(V(3.25, -6, 0), V(-3.25, -6, 0)), False)
sketch22.addConstraint(Sketcher.Constraint("Coincident", 0, 2, 1, 1))
sketch22.addConstraint(Sketcher.Constraint("Coincident", 1, 2, 2, 1))
sketch22.addConstraint(Sketcher.Constraint("Coincident", 2, 2, 3, 1))
sketch22.addConstraint(Sketcher.Constraint("Coincident", 3, 2, 0, 1))
sketch22.addConstraint(Sketcher.Constraint("Vertical", 0))
sketch22.addConstraint(Sketcher.Constraint("Horizontal", 1))
sketch22.addConstraint(Sketcher.Constraint("Vertical", 2))
sketch22.addConstraint(Sketcher.Constraint("Horizontal", 3))
sketch22.addConstraint(Sketcher.Constraint("DistanceX", 1, 1, 1, 2, Q("6.5 mm")))
sketch22.addConstraint(Sketcher.Constraint("DistanceY", 0, 2, 0, 1, Q("1.2 mm")))
sketch22.addConstraint(Sketcher.Constraint("DistanceY", 2, 2, -1, 1, Q("6 mm")))
sketch22.addConstraint(Sketcher.Constraint("DistanceX", 0, 2, -1, 1, Q("3.25 mm")))
pad22 = body23.newObject("PartDesign::Pad", "Pad021")
pad22.Profile = sketch22
pad22.Length = 3.5
body24 = doc.addObject("PartDesign::Body", "Body023")

# Sketch on XY plane
sketch23 = body24.newObject("Sketcher::SketchObject", "Sketch022")
sketch23.AttachmentSupport = (doc.getObject("XY_Plane023"), [""])
sketch23.MapMode = "FlatFace"
sketch23.addGeometry(Part.LineSegment(V(-3.25, -8, 0), V(-3.25, -9.2, 0)), False)
sketch23.addGeometry(Part.LineSegment(V(-3.25, -9.2, 0), V(3.25, -9.2, 0)), False)
sketch23.addGeometry(Part.LineSegment(V(3.25, -9.2, 0), V(3.25, -8, 0)), False)
sketch23.addGeometry(Part.LineSegment(V(3.25, -8, 0), V(-3.25, -8, 0)), False)
sketch23.addConstraint(Sketcher.Constraint("Coincident", 0, 2, 1, 1))
sketch23.addConstraint(Sketcher.Constraint("Coincident", 1, 2, 2, 1))
sketch23.addConstraint(Sketcher.Constraint("Coincident", 2, 2, 3, 1))
sketch23.addConstraint(Sketcher.Constraint("Coincident", 3, 2, 0, 1))
sketch23.addConstraint(Sketcher.Constraint("Vertical", 0))
sketch23.addConstraint(Sketcher.Constraint("Horizontal", 1))
sketch23.addConstraint(Sketcher.Constraint("Vertical", 2))
sketch23.addConstraint(Sketcher.Constraint("Horizontal", 3))
sketch23.addConstraint(Sketcher.Constraint("DistanceX", 1, 1, 1, 2, Q("6.5 mm")))
sketch23.addConstraint(Sketcher.Constraint("DistanceY", 0, 2, 0, 1, Q("1.2 mm")))
sketch23.addConstraint(Sketcher.Constraint("DistanceY", 2, 2, -1, 1, Q("8 mm")))
sketch23.addConstraint(Sketcher.Constraint("DistanceX", 0, 2, -1, 1, Q("3.25 mm")))
pad23 = body24.newObject("PartDesign::Pad", "Pad022")
pad23.Profile = sketch23
pad23.Length = 3.5
body25 = doc.addObject("PartDesign::Body", "Body024")
body25.AllowCompound = True

# Sketch on XY plane
sketch24 = body25.newObject("Sketcher::SketchObject", "Sketch023")
sketch24.AttachmentSupport = (doc.getObject("XY_Plane024"), [""])
sketch24.MapMode = "FlatFace"
sketch24.addGeometry(Part.LineSegment(V(-3.25, 7.2, 0), V(-3.25, 6, 0)), False)
sketch24.addGeometry(Part.LineSegment(V(-3.25, 6, 0), V(3.25, 6, 0)), False)
sketch24.addGeometry(Part.LineSegment(V(3.25, 6, 0), V(3.25, 7.2, 0)), False)
sketch24.addGeometry(Part.LineSegment(V(3.25, 7.2, 0), V(-3.25, 7.2, 0)), False)
sketch24.addConstraint(Sketcher.Constraint("Coincident", 0, 2, 1, 1))
sketch24.addConstraint(Sketcher.Constraint("Coincident", 1, 2, 2, 1))
sketch24.addConstraint(Sketcher.Constraint("Coincident", 2, 2, 3, 1))
sketch24.addConstraint(Sketcher.Constraint("Coincident", 3, 2, 0, 1))
sketch24.addConstraint(Sketcher.Constraint("Vertical", 0))
sketch24.addConstraint(Sketcher.Constraint("Horizontal", 1))
sketch24.addConstraint(Sketcher.Constraint("Vertical", 2))
sketch24.addConstraint(Sketcher.Constraint("Horizontal", 3))
sketch24.addConstraint(Sketcher.Constraint("DistanceX", 1, 1, 1, 2, Q("6.5 mm")))
sketch24.addConstraint(Sketcher.Constraint("DistanceY", 0, 2, 0, 1, Q("1.2 mm")))
sketch24.addConstraint(Sketcher.Constraint("DistanceY", -1, 1, 0, 2, Q("6 mm")))
sketch24.addConstraint(Sketcher.Constraint("DistanceX", 0, 2, -1, 1, Q("3.25 mm")))
pad24 = body25.newObject("PartDesign::Pad", "Pad023")
pad24.Profile = sketch24
pad24.Length = 3.5
doc.recompute()

boolean13 = body25.newObject("PartDesign::Boolean", "Boolean012")
boolean13.Type = "Fuse"
boolean13.addObjects([body18])
doc.recompute()

boolean14 = body25.newObject("PartDesign::Boolean", "Boolean013")
boolean14.Type = "Fuse"
boolean14.addObjects([body19])
doc.recompute()

boolean15 = body25.newObject("PartDesign::Boolean", "Boolean014")
boolean15.Type = "Fuse"
boolean15.addObjects([body20])
doc.recompute()

boolean16 = body25.newObject("PartDesign::Boolean", "Boolean015")
boolean16.Type = "Fuse"
boolean16.addObjects([body21])
doc.recompute()

boolean17 = body25.newObject("PartDesign::Boolean", "Boolean016")
boolean17.Type = "Fuse"
boolean17.addObjects([body22])
doc.recompute()

boolean18 = body25.newObject("PartDesign::Boolean", "Boolean017")
boolean18.Type = "Fuse"
boolean18.addObjects([body23])
doc.recompute()

boolean19 = body25.newObject("PartDesign::Boolean", "Boolean018")
boolean19.Type = "Fuse"
boolean19.addObjects([body24])
body26 = doc.addObject("PartDesign::Body", "Body025")

# Sketch on XY plane
sketch25 = body26.newObject("Sketcher::SketchObject", "Sketch024")
sketch25.AttachmentSupport = (doc.getObject("XY_Plane025"), [""])
sketch25.MapMode = "FlatFace"
sketch25.addGeometry(Part.LineSegment(V(-6, 10, 0), V(-6, -10, 0)), False)
sketch25.addGeometry(Part.LineSegment(V(-6, -10, 0), V(6, -10, 0)), False)
sketch25.addGeometry(Part.LineSegment(V(6, -10, 0), V(6, 10, 0)), False)
sketch25.addGeometry(Part.LineSegment(V(6, 10, 0), V(-6, 10, 0)), False)
sketch25.addConstraint(Sketcher.Constraint("Coincident", 0, 2, 1, 1))
sketch25.addConstraint(Sketcher.Constraint("Coincident", 1, 2, 2, 1))
sketch25.addConstraint(Sketcher.Constraint("Coincident", 2, 2, 3, 1))
sketch25.addConstraint(Sketcher.Constraint("Coincident", 3, 2, 0, 1))
sketch25.addConstraint(Sketcher.Constraint("Vertical", 0))
sketch25.addConstraint(Sketcher.Constraint("Horizontal", 1))
sketch25.addConstraint(Sketcher.Constraint("Vertical", 2))
sketch25.addConstraint(Sketcher.Constraint("Horizontal", 3))
sketch25.addConstraint(Sketcher.Constraint("Symmetric", 0, 2, 2, 2, -1, 1))
sketch25.addConstraint(Sketcher.Constraint("DistanceX", 1, 1, 1, 2, Q("12 mm")))
sketch25.addConstraint(Sketcher.Constraint("DistanceY", 0, 2, 0, 1, Q("20 mm")))
pad25 = body26.newObject("PartDesign::Pad", "Pad024")
pad25.Profile = sketch25
pad25.Length = 6
doc.recompute()

boolean20 = body26.newObject("PartDesign::Boolean", "Boolean019")
boolean20.Type = "Cut"
boolean20.addObjects([body25])
doc.recompute()

boolean21 = body26.newObject("PartDesign::Boolean", "Boolean020")
boolean21.Type = "Cut"
boolean21.addObjects([body17])
doc.recompute()

boolean22 = body26.newObject("PartDesign::Boolean", "Boolean021")
boolean22.Type = "Cut"
boolean22.addObjects([body16])
doc.recompute()

boolean23 = body26.newObject("PartDesign::Boolean", "Boolean022")
boolean23.Type = "Cut"
boolean23.addObjects([body7])
doc.recompute()

boolean24 = body26.newObject("PartDesign::Boolean", "Boolean023")
boolean24.Type = "Cut"
boolean24.addObjects([body6])
doc.recompute()

boolean25 = body26.newObject("PartDesign::Boolean", "Boolean024")
boolean25.Type = "Fuse"
boolean25.addObjects([body4])
doc.recompute()

chamfer2 = body26.newObject("PartDesign::Chamfer", "Chamfer001")
chamfer2.Base = (boolean25, edges_at(boolean25, [
    (0, 3.2, 5.5),
    (0, -3.2, 5.5),
    (0, 3.2, 2.7),
    (0, -3.2, 2.7),
]))
chamfer2.Size = 0.4
doc.recompute()

chamfer3 = body26.newObject("PartDesign::Chamfer", "Chamfer002")
chamfer3.Base = (chamfer2, edges_at(chamfer2, [
    (-4.625, -10, 0),
    (4.625, -10, 0),
    (-4.625, 10, 0),
    (4.625, 10, 0),
]))
chamfer3.Size = 1

doc.recompute()
